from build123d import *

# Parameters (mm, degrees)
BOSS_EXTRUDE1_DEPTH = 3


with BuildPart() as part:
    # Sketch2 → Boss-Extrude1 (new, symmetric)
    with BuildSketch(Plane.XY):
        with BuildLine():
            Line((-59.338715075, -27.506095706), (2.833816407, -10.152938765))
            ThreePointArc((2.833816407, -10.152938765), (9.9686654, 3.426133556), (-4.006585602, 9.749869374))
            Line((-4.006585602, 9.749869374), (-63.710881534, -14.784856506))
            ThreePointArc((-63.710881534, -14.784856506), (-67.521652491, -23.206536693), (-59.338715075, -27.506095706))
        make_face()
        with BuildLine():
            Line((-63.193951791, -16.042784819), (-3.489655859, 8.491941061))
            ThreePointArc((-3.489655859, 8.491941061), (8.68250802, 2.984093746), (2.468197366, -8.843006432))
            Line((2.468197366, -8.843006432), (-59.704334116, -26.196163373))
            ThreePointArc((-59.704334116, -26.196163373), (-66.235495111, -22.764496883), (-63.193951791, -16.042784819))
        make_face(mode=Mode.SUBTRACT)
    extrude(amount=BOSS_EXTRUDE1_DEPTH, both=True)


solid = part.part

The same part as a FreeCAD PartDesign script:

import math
import FreeCAD as App
import Part
import Sketcher

doc = App.newDocument("Part")
params = doc.addObject("Spreadsheet::Sheet", "Params")
for row, (alias, value) in enumerate([
    ("pad1_length", "6 mm"),
], start=1):
    params.set(f"A{row}", alias)
    params.set(f"B{row}", "=" + value)
    params.setAlias(f"B{row}", alias)

body = doc.addObject("PartDesign::Body", "Body")

sketch1 = body.newObject("Sketcher::SketchObject", "Sketch")
sketch1.AttachmentSupport = (doc.getObject("XY_Plane"), [""])
sketch1.MapMode = "FlatFace"
sketch1.addGeometry([
    Part.LineSegment(App.Vector(-59.338715, -27.506096, 0), App.Vector(2.833816, -10.152939, 0)),
    Part.ArcOfCircle(Part.Circle(App.Vector(0, 0, 0), App.Vector(0, 0, 1), 10.541), math.radians(-74.404895), math.radians(112.339592)),
    Part.LineSegment(App.Vector(-4.006586, 9.749869, 0), App.Vector(-63.710882, -14.784857, 0)),
    Part.ArcOfCircle(Part.Circle(App.Vector(-61.15, -21.016662, 0), App.Vector(0, 0, 1), 6.73747), math.radians(112.339592), math.radians(285.595105)),
    Part.ArcOfCircle(Part.Circle(App.Vector(-61.15, -21.016662, 0), App.Vector(0, 0, 1), 5.37747), math.radians(112.339592), math.radians(285.595105)),
    Part.LineSegment(App.Vector(-63.193952, -16.042785, 0), App.Vector(-3.489656, 8.491941, 0)),
    Part.ArcOfCircle(Part.Circle(App.Vector(0, 0, 0), App.Vector(0, 0, 1), 9.181), math.radians(-74.404895), math.radians(112.339592)),
    Part.LineSegment(App.Vector(2.468197, -8.843006, 0), App.Vector(-59.704334, -26.196163, 0)),
], False)
sketch1.addConstraint([
    Sketcher.Constraint("Coincident", 0, 2, 1, 1),
    Sketcher.Constraint("Coincident", 1, 2, 2, 1),
    Sketcher.Constraint("Coincident", 2, 2, 3, 1),
    Sketcher.Constraint("Coincident", 3, 2, 0, 1),
    Sketcher.Constraint("Coincident", 4, 1, 5, 1),
    Sketcher.Constraint("Coincident", 5, 2, 6, 2),
    Sketcher.Constraint("Coincident", 6, 1, 7, 1),
    Sketcher.Constraint("Coincident", 7, 2, 4, 2),
    Sketcher.Constraint("Coincident", 1, 3, -1, 1),
    Sketcher.Constraint("Coincident", 6, 3, -1, 1),
    Sketcher.Constraint("Coincident", 4, 3, 3, 3),
    Sketcher.Constraint("Radius", 1, 10.541),
    Sketcher.Constraint("Radius", 6, 9.181),
    Sketcher.Constraint("DistanceX", 3, 3, -1, 1, 61.15),
    Sketcher.Constraint("Radius", 3, 6.73747),
    Sketcher.Constraint("Radius", 4, 5.37747),
    Sketcher.Constraint("DistanceY", 7, 2, 3, 3, 5.179502),
    Sketcher.Constraint("DistanceY", 3, 3, -1, 1, 21.016662),
    Sketcher.Constraint("DistanceY", 0, 2, -1, 1, 10.152939),
    Sketcher.Constraint("DistanceY", -1, 1, 1, 2, 9.749869),
    Sketcher.Constraint("DistanceX", 2, 2, -1, 1, 63.710882),
    Sketcher.Constraint("DistanceX", 4, 1, -1, 1, 63.193952),
    Sketcher.Constraint("DistanceY", -1, 1, 5, 2, 8.491941),
    Sketcher.Constraint("DistanceY", 3, 2, 2, 2, 12.721239),
    Sketcher.Constraint("DistanceX", 6, 1, 0, 2, 0.365619),
])
pad1 = body.newObject("PartDesign::Pad", "Pad")
pad1.Profile = sketch1
pad1.setExpression("Length", "Params.pad1_length")
pad1.Midplane = True

doc.recompute()
